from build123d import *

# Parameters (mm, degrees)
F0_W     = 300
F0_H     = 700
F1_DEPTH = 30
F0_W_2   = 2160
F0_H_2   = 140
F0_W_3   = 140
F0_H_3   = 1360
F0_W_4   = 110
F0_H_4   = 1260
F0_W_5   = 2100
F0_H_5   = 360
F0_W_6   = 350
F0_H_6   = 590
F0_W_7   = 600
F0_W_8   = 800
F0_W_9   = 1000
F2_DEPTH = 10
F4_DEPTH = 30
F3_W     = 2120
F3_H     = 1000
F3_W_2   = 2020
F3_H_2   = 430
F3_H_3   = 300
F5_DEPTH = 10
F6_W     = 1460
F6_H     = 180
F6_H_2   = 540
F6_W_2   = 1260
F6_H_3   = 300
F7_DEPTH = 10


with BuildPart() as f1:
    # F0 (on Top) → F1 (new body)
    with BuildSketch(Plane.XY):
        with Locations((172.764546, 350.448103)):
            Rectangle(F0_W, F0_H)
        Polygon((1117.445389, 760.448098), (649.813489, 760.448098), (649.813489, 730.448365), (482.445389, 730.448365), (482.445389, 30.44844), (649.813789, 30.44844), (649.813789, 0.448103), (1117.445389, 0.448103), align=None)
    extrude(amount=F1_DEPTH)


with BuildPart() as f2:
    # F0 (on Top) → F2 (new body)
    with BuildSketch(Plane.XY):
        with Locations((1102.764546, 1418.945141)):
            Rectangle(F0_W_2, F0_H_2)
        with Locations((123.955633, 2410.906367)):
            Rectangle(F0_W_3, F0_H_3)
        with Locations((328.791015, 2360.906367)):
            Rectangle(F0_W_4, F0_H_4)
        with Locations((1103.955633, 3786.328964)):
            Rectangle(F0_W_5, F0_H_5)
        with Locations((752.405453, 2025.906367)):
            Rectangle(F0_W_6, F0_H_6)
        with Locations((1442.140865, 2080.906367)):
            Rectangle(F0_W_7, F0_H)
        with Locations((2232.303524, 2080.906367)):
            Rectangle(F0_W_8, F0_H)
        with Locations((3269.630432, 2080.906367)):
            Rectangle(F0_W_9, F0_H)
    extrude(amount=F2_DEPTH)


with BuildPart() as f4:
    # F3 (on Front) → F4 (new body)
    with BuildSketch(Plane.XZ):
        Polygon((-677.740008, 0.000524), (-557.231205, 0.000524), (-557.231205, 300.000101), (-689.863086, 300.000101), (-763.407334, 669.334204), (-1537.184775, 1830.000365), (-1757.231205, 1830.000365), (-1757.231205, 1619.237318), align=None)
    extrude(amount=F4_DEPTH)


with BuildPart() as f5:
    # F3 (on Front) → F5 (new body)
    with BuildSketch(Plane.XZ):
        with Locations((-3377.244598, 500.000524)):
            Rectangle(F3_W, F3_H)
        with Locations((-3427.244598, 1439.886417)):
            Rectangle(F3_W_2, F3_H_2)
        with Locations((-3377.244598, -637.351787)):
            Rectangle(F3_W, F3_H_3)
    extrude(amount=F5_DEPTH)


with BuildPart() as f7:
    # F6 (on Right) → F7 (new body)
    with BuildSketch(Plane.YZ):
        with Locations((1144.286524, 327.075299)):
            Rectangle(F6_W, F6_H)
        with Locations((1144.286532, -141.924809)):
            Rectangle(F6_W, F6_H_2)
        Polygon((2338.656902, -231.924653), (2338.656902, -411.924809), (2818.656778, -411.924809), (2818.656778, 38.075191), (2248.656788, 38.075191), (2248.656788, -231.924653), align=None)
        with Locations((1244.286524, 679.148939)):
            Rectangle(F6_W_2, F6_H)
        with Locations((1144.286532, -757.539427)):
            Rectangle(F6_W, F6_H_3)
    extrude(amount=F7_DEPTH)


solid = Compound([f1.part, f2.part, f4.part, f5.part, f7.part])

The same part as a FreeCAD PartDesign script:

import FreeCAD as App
import Part
import Sketcher
from FreeCAD import Vector
Q = App.Units.Quantity

doc = App.newDocument("Part")
body = doc.addObject("PartDesign::Body", "Body")
body.AllowCompound = True

sketch1 = body.newObject("Sketcher::SketchObject", "Sketch")
sketch1.AttachmentSupport = (doc.getObject("XY_Plane"), [""])
sketch1.MapMode = "FlatFace"
sketch1.addGeometry(Part.LineSegment(Vector(23, 700, 0), Vector(23, 0, 0)), False)
sketch1.addGeometry(Part.LineSegment(Vector(23, 0, 0), Vector(323, 0, 0)), False)
sketch1.addGeometry(Part.LineSegment(Vector(323, 0, 0), Vector(323, 700, 0)), False)
sketch1.addGeometry(Part.LineSegment(Vector(323, 700, 0), Vector(23, 700, 0)), False)
sketch1.addGeometry(Part.LineSegment(Vector(1117, 760, 0), Vector(650, 760, 0)), False)
sketch1.addGeometry(Part.LineSegment(Vector(650, 760, 0), Vector(650, 730, 0)), False)
sketch1.addGeometry(Part.LineSegment(Vector(650, 730, 0), Vector(482, 730, 0)), False)
sketch1.addGeometry(Part.LineSegment(Vector(482, 730, 0), Vector(482, 30, 0)), False)
sketch1.addGeometry(Part.LineSegment(Vector(482, 30, 0), Vector(650, 30, 0)), False)
sketch1.addGeometry(Part.LineSegment(Vector(650, 30, 0), Vector(650, 0, 0)), False)
sketch1.addGeometry(Part.LineSegment(Vector(650, 0, 0), Vector(1117, 0, 0)), False)
sketch1.addGeometry(Part.LineSegment(Vector(1117, 0, 0), Vector(1117, 760, 0)), False)
sketch1.addConstraint(Sketcher.Constraint("Coincident", 0, 2, 1, 1))
sketch1.addConstraint(Sketcher.Constraint("Coincident", 1, 2, 2, 1))
sketch1.addConstraint(Sketcher.Constraint("Coincident", 2, 2, 3, 1))
sketch1.addConstraint(Sketcher.Constraint("Coincident", 3, 2, 0, 1))
sketch1.addConstraint(Sketcher.Constraint("Coincident", 4, 2, 5, 1))
sketch1.addConstraint(Sketcher.Constraint("Coincident", 5, 2, 6, 1))
sketch1.addConstraint(Sketcher.Constraint("Coincident", 6, 2, 7, 1))
sketch1.addConstraint(Sketcher.Constraint("Coincident", 7, 2, 8, 1))
sketch1.addConstraint(Sketcher.Constraint("Coincident", 8, 2, 9, 1))
sketch1.addConstraint(Sketcher.Constraint("Coincident", 9, 2, 10, 1))
sketch1.addConstraint(Sketcher.Constraint("Coincident", 10, 2, 11, 1))
sketch1.addConstraint(Sketcher.Constraint("Coincident", 11, 2, 4, 1))
sketch1.addConstraint(Sketcher.Constraint("Vertical", 0))
sketch1.addConstraint(Sketcher.Constraint("Horizontal", 1))
sketch1.addConstraint(Sketcher.Constraint("Vertical", 2))
sketch1.addConstraint(Sketcher.Constraint("Horizontal", 3))
sketch1.addConstraint(Sketcher.Constraint("Horizontal", 4))
sketch1.addConstraint(Sketcher.Constraint("Vertical", 5))
sketch1.addConstraint(Sketcher.Constraint("Horizontal", 6))
sketch1.addConstraint(Sketcher.Constraint("Vertical", 7))
sketch1.addConstraint(Sketcher.Constraint("Horizontal", 8))
sketch1.addConstraint(Sketcher.Constraint("Vertical", 9))
sketch1.addConstraint(Sketcher.Constraint("Horizontal", 10))
sketch1.addConstraint(Sketcher.Constraint("Vertical", 11))
sketch1.addConstraint(Sketcher.Constraint("Horizontal", 1, 2, 9, 2))
sketch1.addConstraint(Sketcher.Constraint("DistanceX", 1, 1, 1, 2, Q("300 mm")))
sketch1.addConstraint(Sketcher.Constraint("DistanceY", 0, 2, 0, 1, Q("700 mm")))
sketch1.addConstraint(Sketcher.Constraint("DistanceX", 7, 2, 10, 2, Q("635 mm")))
sketch1.addConstraint(Sketcher.Constraint("DistanceX", 4, 2, 4, 1, Q("467.6319 mm")))
sketch1.addConstraint(Sketcher.Constraint("DistanceX", 8, 1, 8, 2, Q("167.3684 mm")))
sketch1.addConstraint(Sketcher.Constraint("DistanceY", -1, 1, 4, 2, Q("760.448098 mm")))
sketch1.addConstraint(Sketcher.Constraint("DistanceY", 5, 2, 5, 1, Q("29.999733 mm")))
sketch1.addConstraint(Sketcher.Constraint("DistanceY", 7, 2, 7, 1, Q("699.999925 mm")))
sketch1.addConstraint(Sketcher.Constraint("DistanceY", 9, 2, 9, 1, Q("30.000337 mm")))
sketch1.addConstraint(Sketcher.Constraint("DistanceX", -1, 1, 4, 2, Q("649.813489 mm")))
sketch1.addConstraint(Sketcher.Constraint("DistanceX", -1, 1, 0, 2, Q("22.764546 mm")))
pad1 = body.newObject("PartDesign::Pad", "Pad")
pad1.Profile = sketch1
pad1.Length = 30
body2 = doc.addObject("PartDesign::Body", "Body001")
body2.AllowCompound = True

sketch2 = body2.newObject("Sketcher::SketchObject", "Sketch001")
sketch2.AttachmentSupport = (doc.getObject("XY_Plane001"), [""])
sketch2.MapMode = "FlatFace"
sketch2.addGeometry(Part.LineSegment(Vector(23, 1489, 0), Vector(23, 1349, 0)), False)
sketch2.addGeometry(Part.LineSegment(Vector(23, 1349, 0), Vector(2183, 1349, 0)), False)
sketch2.addGeometry(Part.LineSegment(Vector(2183, 1349, 0), Vector(2183, 1489, 0)), False)
sketch2.addGeometry(Part.LineSegment(Vector(2183, 1489, 0), Vector(23, 1489, 0)), False)
sketch2.addGeometry(Part.LineSegment(Vector(54, 3091, 0), Vector(54, 1731, 0)), False)
sketch2.addGeometry(Part.LineSegment(Vector(54, 1731, 0), Vector(194, 1731, 0)), False)
sketch2.addGeometry(Part.LineSegment(Vector(194, 1731, 0), Vector(194, 3091, 0)), False)
sketch2.addGeometry(Part.LineSegment(Vector(194, 3091, 0), Vector(54, 3091, 0)), False)
sketch2.addGeometry(Part.LineSegment(Vector(274, 2991, 0), Vector(274, 1731, 0)), False)
sketch2.addGeometry(Part.LineSegment(Vector(274, 1731, 0), Vector(384, 1731, 0)), False)
sketch2.addGeometry(Part.LineSegment(Vector(384, 1731, 0), Vector(384, 2991, 0)), False)
sketch2.addGeometry(Part.LineSegment(Vector(384, 2991, 0), Vector(274, 2991, 0)), False)
sketch2.addGeometry(Part.LineSegment(Vector(54, 3966, 0), Vector(54, 3606, 0)), False)
sketch2.addGeometry(Part.LineSegment(Vector(54, 3606, 0), Vector(2154, 3606, 0)), False)
sketch2.addGeometry(Part.LineSegment(Vector(2154, 3606, 0), Vector(2154, 3966, 0)), False)
sketch2.addGeometry(Part.LineSegment(Vector(2154, 3966, 0), Vector(54, 3966, 0)), False)
sketch2.addGeometry(Part.LineSegment(Vector(577, 2321, 0), Vector(577, 1731, 0)), False)
sketch2.addGeometry(Part.LineSegment(Vector(577, 1731, 0), Vector(927, 1731, 0)), False)
sketch2.addGeometry(Part.LineSegment(Vector(927, 1731, 0), Vector(927, 2321, 0)), False)
sketch2.addGeometry(Part.LineSegment(Vector(927, 2321, 0), Vector(577, 2321, 0)), False)
sketch2.addGeometry(Part.LineSegment(Vector(1142, 2431, 0), Vector(1142, 1731, 0)), False)
sketch2.addGeometry(Part.LineSegment(Vector(1142, 1731, 0), Vector(1742, 1731, 0)), False)
sketch2.addGeometry(Part.LineSegment(Vector(1742, 1731, 0), Vector(1742, 2431, 0)), False)
sketch2.addGeometry(Part.LineSegment(Vector(1742, 2431, 0), Vector(1142, 2431, 0)), False)
sketch2.addGeometry(Part.LineSegment(Vector(1832, 2431, 0), Vector(1832, 1731, 0)), False)
sketch2.addGeometry(Part.LineSegment(Vector(1832, 1731, 0), Vector(2632, 1731, 0)), False)
sketch2.addGeometry(Part.LineSegment(Vector(2632, 1731, 0), Vector(2632, 2431, 0)), False)
sketch2.addGeometry(Part.LineSegment(Vector(2632, 2431, 0), Vector(1832, 2431, 0)), False)
sketch2.addGeometry(Part.LineSegment(Vector(2770, 2431, 0), Vector(2770, 1731, 0)), False)
sketch2.addGeometry(Part.LineSegment(Vector(2770, 1731, 0), Vector(3770, 1731, 0)), False)
sketch2.addGeometry(Part.LineSegment(Vector(3770, 1731, 0), Vector(3770, 2431, 0)), False)
sketch2.addGeometry(Part.LineSegment(Vector(3770, 2431, 0), Vector(2770, 2431, 0)), False)
sketch2.addConstraint(Sketcher.Constraint("Coincident", 0, 2, 1, 1))
sketch2.addConstraint(Sketcher.Constraint("Coincident", 1, 2, 2, 1))
sketch2.addConstraint(Sketcher.Constraint("Coincident", 2, 2, 3, 1))
sketch2.addConstraint(Sketcher.Constraint("Coincident", 3, 2, 0, 1))
sketch2.addConstraint(Sketcher.Constraint("Coincident", 4, 2, 5, 1))
sketch2.addConstraint(Sketcher.Constraint("Coincident", 5, 2, 6, 1))
sketch2.addConstraint(Sketcher.Constraint("Coincident", 6, 2, 7, 1))
sketch2.addConstraint(Sketcher.Constraint("Coincident", 7, 2, 4, 1))
sketch2.addConstraint(Sketcher.Constraint("Coincident", 8, 2, 9, 1))
sketch2.addConstraint(Sketcher.Constraint("Coincident", 9, 2, 10, 1))
sketch2.addConstraint(Sketcher.Constraint("Coincident", 10, 2, 11, 1))
sketch2.addConstraint(Sketcher.Constraint("Coincident", 11, 2, 8, 1))
sketch2.addConstraint(Sketcher.Constraint("Coincident", 12, 2, 13, 1))
sketch2.addConstraint(Sketcher.Constraint("Coincident", 13, 2, 14, 1))
sketch2.addConstraint(Sketcher.Constraint("Coincident", 14, 2, 15, 1))
sketch2.addConstraint(Sketcher.Constraint("Coincident", 15, 2, 12, 1))
sketch2.addConstraint(Sketcher.Constraint("Coincident", 16, 2, 17, 1))
sketch2.addConstraint(Sketcher.Constraint("Coincident", 17, 2, 18, 1))
sketch2.addConstraint(Sketcher.Constraint("Coincident", 18, 2, 19, 1))
sketch2.addConstraint(Sketcher.Constraint("Coincident", 19, 2, 16, 1))
sketch2.addConstraint(Sketcher.Constraint("Coincident", 20, 2, 21, 1))
sketch2.addConstraint(Sketcher.Constraint("Coincident", 21, 2, 22, 1))
sketch2.addConstraint(Sketcher.Constraint("Coincident", 22, 2, 23, 1))
sketch2.addConstraint(Sketcher.Constraint("Coincident", 23, 2, 20, 1))
sketch2.addConstraint(Sketcher.Constraint("Coincident", 24, 2, 25, 1))
sketch2.addConstraint(Sketcher.Constraint("Coincident", 25, 2, 26, 1))
sketch2.addConstraint(Sketcher.Constraint("Coincident", 26, 2, 27, 1))
sketch2.addConstraint(Sketcher.Constraint("Coincident", 27, 2, 24, 1))
sketch2.addConstraint(Sketcher.Constraint("Coincident", 28, 2, 29, 1))
sketch2.addConstraint(Sketcher.Constraint("Coincident", 29, 2, 30, 1))
sketch2.addConstraint(Sketcher.Constraint("Coincident", 30, 2, 31, 1))
sketch2.addConstraint(Sketcher.Constraint("Coincident", 31, 2, 28, 1))
sketch2.addConstraint(Sketcher.Constraint("Vertical", 0))
sketch2.addConstraint(Sketcher.Constraint("Horizontal", 1))
sketch2.addConstraint(Sketcher.Constraint("Vertical", 2))
sketch2.addConstraint(Sketcher.Constraint("Horizontal", 3))
sketch2.addConstraint(Sketcher.Constraint("Vertical", 4))
sketch2.addConstraint(Sketcher.Constraint("Horizontal", 5))
sketch2.addConstraint(Sketcher.Constraint("Vertical", 6))
sketch2.addConstraint(Sketcher.Constraint("Horizontal", 7))
sketch2.addConstraint(Sketcher.Constraint("Vertical", 8))
sketch2.addConstraint(Sketcher.Constraint("Horizontal", 9))
sketch2.addConstraint(Sketcher.Constraint("Vertical", 10))
sketch2.addConstraint(Sketcher.Constraint("Horizontal", 11))
sketch2.addConstraint(Sketcher.Constraint("Vertical", 12))
sketch2.addConstraint(Sketcher.Constraint("Horizontal", 13))
sketch2.addConstraint(Sketcher.Constraint("Vertical", 14))
sketch2.addConstraint(Sketcher.Constraint("Horizontal", 15))
sketch2.addConstraint(Sketcher.Constraint("Vertical", 16))
sketch2.addConstraint(Sketcher.Constraint("Horizontal", 17))
sketch2.addConstraint(Sketcher.Constraint("Vertical", 18))
sketch2.addConstraint(Sketcher.Constraint("Horizontal", 19))
sketch2.addConstraint(Sketcher.Constraint("Vertical", 20))
sketch2.addConstraint(Sketcher.Constraint("Horizontal", 21))
sketch2.addConstraint(Sketcher.Constraint("Vertical", 22))
sketch2.addConstraint(Sketcher.Constraint("Horizontal", 23))
sketch2.addConstraint(Sketcher.Constraint("Vertical", 24))
sketch2.addConstraint(Sketcher.Constraint("Horizontal", 25))
sketch2.addConstraint(Sketcher.Constraint("Vertical", 26))
sketch2.addConstraint(Sketcher.Constraint("Horizontal", 27))
sketch2.addConstraint(Sketcher.Constraint("Vertical", 28))
sketch2.addConstraint(Sketcher.Constraint("Horizontal", 29))
sketch2.addConstraint(Sketcher.Constraint("Vertical", 30))
sketch2.addConstraint(Sketcher.Constraint("Horizontal", 31))
sketch2.addConstraint(Sketcher.Constraint("Horizontal", 5, 2, 8, 2))
sketch2.addConstraint(Sketcher.Constraint("Horizontal", 9, 2, 16, 2))
sketch2.addConstraint(Sketcher.Constraint("Horizontal", 17, 2, 20, 2))
sketch2.addConstraint(Sketcher.Constraint("Horizontal", 21, 2, 24, 2))
sketch2.addConstraint(Sketcher.Constraint("Horizontal", 23, 2, 26, 2))
sketch2.addConstraint(Sketcher.Constraint("Horizontal", 25, 2, 28, 2))
sketch2.addConstraint(Sketcher.Constraint("Horizontal", 27, 2, 30, 2))
sketch2.addConstraint(Sketcher.Constraint("Vertical", 7, 2, 12, 2))
sketch2.addConstraint(Sketcher.Constraint("Equal", 7, 0))
sketch2.addConstraint(Sketcher.Constraint("DistanceX", 1, 1, 1, 2, Q("2160 mm")))
sketch2.addConstraint(Sketcher.Constraint("DistanceX", 5, 1, 5, 2, Q("140 mm")))
sketch2.addConstraint(Sketcher.Constraint("DistanceX", 9, 1, 9, 2, Q("110 mm")))
sketch2.addConstraint(Sketcher.Constraint("DistanceX", 13, 1, 13, 2, Q("2100 mm")))
sketch2.addConstraint(Sketcher.Constraint("DistanceX", 17, 1, 17, 2, Q("350 mm")))
sketch2.addConstraint(Sketcher.Constraint("DistanceX", 21, 1, 21, 2, Q("600 mm")))
sketch2.addConstraint(Sketcher.Constraint("DistanceX", 25, 1, 25, 2, Q("800 mm")))
sketch2.addConstraint(Sketcher.Constraint("DistanceX", 29, 1, 29, 2, Q("1000 mm")))
sketch2.addConstraint(Sketcher.Constraint("DistanceY", 4, 2, 4, 1, Q("1360 mm")))
sketch2.addConstraint(Sketcher.Constraint("DistanceY", 8, 2, 8, 1, Q("1260 mm")))
sketch2.addConstraint(Sketcher.Constraint("DistanceY", 12, 2, 12, 1, Q("360 mm")))
sketch2.addConstraint(Sketcher.Constraint("DistanceY", 16, 2, 16, 1, Q("590 mm")))
sketch2.addConstraint(Sketcher.Constraint("DistanceY", 20, 2, 20, 1, Q("700 mm")))
sketch2.addConstraint(Sketcher.Constraint("DistanceY", -1, 1, 0, 2, Q("1348.945141 mm")))
sketch2.addConstraint(Sketcher.Constraint("DistanceX", -1, 1, 28, 2, Q("2769.630432 mm")))
sketch2.addConstraint(Sketcher.Constraint("DistanceX", 3, 2, 8, 2, Q("251.026469 mm")))
sketch2.addConstraint(Sketcher.Constraint("DistanceX", 10, 2, 13, 2, Q("1770.164618 mm")))
sketch2.addConstraint(Sketcher.Constraint("DistanceX", 5, 2, 16, 2, Q("383.44982 mm")))
sketch2.addConstraint(Sketcher.Constraint("DistanceX", 9, 2, 20, 2, Q("758.34985 mm")))
sketch2.addConstraint(Sketcher.Constraint("DistanceX", 21, 2, 24, 2, Q("90.162659 mm")))
sketch2.addConstraint(Sketcher.Constraint("DistanceX", 25, 2, 28, 2, Q("137.326908 mm")))
sketch2.addConstraint(Sketcher.Constraint("DistanceY", -1, 1, 4, 2, Q("1730.906367 mm")))
sketch2.addConstraint(Sketcher.Constraint("DistanceY", -1, 1, 12, 2, Q("3606.328964 mm")))
pad2 = body2.newObject("PartDesign::Pad", "Pad001")
pad2.Profile = sketch2
pad2.Length = 10
body3 = doc.addObject("PartDesign::Body", "Body002")

sketch3 = body3.newObject("Sketcher::SketchObject", "Sketch002")
sketch3.AttachmentSupport = (doc.getObject("XZ_Plane002"), [""])
sketch3.MapMode = "FlatFace"
sketch3.addGeometry(Part.LineSegment(Vector(-678, 0, 0), Vector(-557, 0, 0)), False)
sketch3.addGeometry(Part.LineSegment(Vector(-557, 0, 0), Vector(-557, 300, 0)), False)
sketch3.addGeometry(Part.LineSegment(Vector(-557, 300, 0), Vector(-690, 300, 0)), False)
sketch3.addGeometry(Part.LineSegment(Vector(-690, 300, 0), Vector(-763, 669, 0)), False)
sketch3.addGeometry(Part.LineSegment(Vector(-763, 669, 0), Vector(-1537, 1830, 0)), False)
sketch3.addGeometry(Part.LineSegment(Vector(-1537, 1830, 0), Vector(-1757, 1830, 0)), False)
sketch3.addGeometry(Part.LineSegment(Vector(-1757, 1830, 0), Vector(-1757, 1619, 0)), False)
sketch3.addGeometry(Part.LineSegment(Vector(-1757, 1619, 0), Vector(-678, 0, 0)), False)
sketch3.addConstraint(Sketcher.Constraint("Coincident", 0, 2, 1, 1))
sketch3.addConstraint(Sketcher.Constraint("Coincident", 1, 2, 2, 1))
sketch3.addConstraint(Sketcher.Constraint("Coincident", 2, 2, 3, 1))
sketch3.addConstraint(Sketcher.Constraint("Coincident", 3, 2, 4, 1))
sketch3.addConstraint(Sketcher.Constraint("Coincident", 4, 2, 5, 1))
sketch3.addConstraint(Sketcher.Constraint("Coincident", 5, 2, 6, 1))
sketch3.addConstraint(Sketcher.Constraint("Coincident", 6, 2, 7, 1))
sketch3.addConstraint(Sketcher.Constraint("Coincident", 7, 2, 0, 1))
sketch3.addConstraint(Sketcher.Constraint("Horizontal", 0))
sketch3.addConstraint(Sketcher.Constraint("Vertical", 1))
sketch3.addConstraint(Sketcher.Constraint("Horizontal", 2))
sketch3.addConstraint(Sketcher.Constraint("Horizontal", 5))
sketch3.addConstraint(Sketcher.Constraint("Vertical", 6))
sketch3.addConstraint(Sketcher.Constraint("Parallel", 4, 7))
sketch3.addConstraint(Sketcher.Constraint("DistanceX", 5, 2, 1, 2, Q("1200 mm")))
sketch3.addConstraint(Sketcher.Constraint("DistanceX", 2, 2, 2, 1, Q("132.631881 mm")))
sketch3.addConstraint(Sketcher.Constraint("DistanceX", 5, 2, 5, 1, Q("220.04643 mm")))
sketch3.addConstraint(Sketcher.Constraint("DistanceY", -1, 1, 1, 2, Q("300.000101 mm")))
sketch3.addConstraint(Sketcher.Constraint("Distance", 3, Q("376.585231 mm")))
sketch3.addConstraint(Sketcher.Constraint("Distance", 4, Q("1394.947119 mm")))
sketch3.addConstraint(Sketcher.Constraint("Distance", 7, Q("1946.08043 mm")))
sketch3.addConstraint(Sketcher.Constraint("DistanceX", 0, 1, 0, 2, Q("120.508803 mm")))
sketch3.addConstraint(Sketcher.Constraint("DistanceY", 1, 1, 1, 2, Q("299.999577 mm")))
sketch3.addConstraint(Sketcher.Constraint("DistanceX", 7, 2, -1, 1, Q("677.740008 mm")))
pad3 = body3.newObject("PartDesign::Pad", "Pad002")
pad3.Profile = sketch3
pad3.Length = 30
body4 = doc.addObject("PartDesign::Body", "Body003")
body4.AllowCompound = True

sketch4 = body4.newObject("Sketcher::SketchObject", "Sketch003")
sketch4.AttachmentSupport = (doc.getObject("XZ_Plane003"), [""])
sketch4.MapMode = "FlatFace"
sketch4.addGeometry(Part.LineSegment(Vector(-4437, 1000, 0), Vector(-4437, 0, 0)), False)
sketch4.addGeometry(Part.LineSegment(Vector(-4437, 0, 0), Vector(-2317, 0, 0)), False)
sketch4.addGeometry(Part.LineSegment(Vector(-2317, 0, 0), Vector(-2317, 1000, 0)), False)
sketch4.addGeometry(Part.LineSegment(Vector(-2317, 1000, 0), Vector(-4437, 1000, 0)), False)
sketch4.addGeometry(Part.LineSegment(Vector(-4437, 1655, 0), Vector(-4437, 1225, 0)), False)
sketch4.addGeometry(Part.LineSegment(Vector(-4437, 1225, 0), Vector(-2417, 1225, 0)), False)
sketch4.addGeometry(Part.LineSegment(Vector(-2417, 1225, 0), Vector(-2417, 1655, 0)), False)
sketch4.addGeometry(Part.LineSegment(Vector(-2417, 1655, 0), Vector(-4437, 1655, 0)), False)
sketch4.addGeometry(Part.LineSegment(Vector(-4437, -487, 0), Vector(-4437, -787, 0)), False)
sketch4.addGeometry(Part.LineSegment(Vector(-4437, -787, 0), Vector(-2317, -787, 0)), False)
sketch4.addGeometry(Part.LineSegment(Vector(-2317, -787, 0), Vector(-2317, -487, 0)), False)
sketch4.addGeometry(Part.LineSegment(Vector(-2317, -487, 0), Vector(-4437, -487, 0)), False)
sketch4.addConstraint(Sketcher.Constraint("Coincident", 0, 2, 1, 1))
sketch4.addConstraint(Sketcher.Constraint("Coincident", 1, 2, 2, 1))
sketch4.addConstraint(Sketcher.Constraint("Coincident", 2, 2, 3, 1))
sketch4.addConstraint(Sketcher.Constraint("Coincident", 3, 2, 0, 1))
sketch4.addConstraint(Sketcher.Constraint("Coincident", 4, 2, 5, 1))
sketch4.addConstraint(Sketcher.Constraint("Coincident", 5, 2, 6, 1))
sketch4.addConstraint(Sketcher.Constraint("Coincident", 6, 2, 7, 1))
sketch4.addConstraint(Sketcher.Constraint("Coincident", 7, 2, 4, 1))
sketch4.addConstraint(Sketcher.Constraint("Coincident", 8, 2, 9, 1))
sketch4.addConstraint(Sketcher.Constraint("Coincident", 9, 2, 10, 1))
sketch4.addConstraint(Sketcher.Constraint("Coincident", 10, 2, 11, 1))
sketch4.addConstraint(Sketcher.Constraint("Coincident", 11, 2, 8, 1))
sketch4.addConstraint(Sketcher.Constraint("Vertical", 0))
sketch4.addConstraint(Sketcher.Constraint("Horizontal", 1))
sketch4.addConstraint(Sketcher.Constraint("Vertical", 2))
sketch4.addConstraint(Sketcher.Constraint("Horizontal", 3))
sketch4.addConstraint(Sketcher.Constraint("Vertical", 4))
sketch4.addConstraint(Sketcher.Constraint("Horizontal", 5))
sketch4.addConstraint(Sketcher.Constraint("Vertical", 6))
sketch4.addConstraint(Sketcher.Constraint("Horizontal", 7))
sketch4.addConstraint(Sketcher.Constraint("Vertical", 8))
sketch4.addConstraint(Sketcher.Constraint("Horizontal", 9))
sketch4.addConstraint(Sketcher.Constraint("Vertical", 10))
sketch4.addConstraint(Sketcher.Constraint("Horizontal", 11))
sketch4.addConstraint(Sketcher.Constraint("Vertical", 3, 2, 4, 2))
sketch4.addConstraint(Sketcher.Constraint("Vertical", 7, 2, 8, 2))
sketch4.addConstraint(Sketcher.Constraint("Vertical", 2, 2, 9, 2))
sketch4.addConstraint(Sketcher.Constraint("DistanceX", 1, 1, 1, 2, Q("2120 mm")))
sketch4.addConstraint(Sketcher.Constraint("DistanceX", 5, 1, 5, 2, Q("2020 mm")))
sketch4.addConstraint(Sketcher.Constraint("DistanceY", 0, 2, 0, 1, Q("1000 mm")))
sketch4.addConstraint(Sketcher.Constraint("DistanceY", 4, 2, 4, 1, Q("430 mm")))
sketch4.addConstraint(Sketcher.Constraint("DistanceY", 8, 2, 8, 1, Q("300 mm")))
sketch4.addConstraint(Sketcher.Constraint("DistanceX", 0, 2, -1, 1, Q("4437.244598 mm")))
sketch4.addConstraint(Sketcher.Constraint("DistanceY", 8, 2, 0, 2, Q("787.352311 mm")))
sketch4.addConstraint(Sketcher.Constraint("DistanceY", -1, 1, 0, 2, Q("0.000524 mm")))
sketch4.addConstraint(Sketcher.Constraint("DistanceY", -1, 1, 4, 2, Q("1224.886417 mm")))
pad4 = body4.newObject("PartDesign::Pad", "Pad003")
pad4.Profile = sketch4
pad4.Length = 10
body5 = doc.addObject("PartDesign::Body", "Body004")
body5.AllowCompound = True

sketch5 = body5.newObject("Sketcher::SketchObject", "Sketch004")
sketch5.AttachmentSupport = (doc.getObject("YZ_Plane004"), [""])
sketch5.MapMode = "FlatFace"
sketch5.addGeometry(Part.LineSegment(Vector(414, 417, 0), Vector(414, 237, 0)), False)
sketch5.addGeometry(Part.LineSegment(Vector(414, 237, 0), Vector(1874, 237, 0)), False)
sketch5.addGeometry(Part.LineSegment(Vector(1874, 237, 0), Vector(1874, 417, 0)), False)
sketch5.addGeometry(Part.LineSegment(Vector(1874, 417, 0), Vector(414, 417, 0)), False)
sketch5.addGeometry(Part.LineSegment(Vector(414, 128, 0), Vector(414, -412, 0)), False)
sketch5.addGeometry(Part.LineSegment(Vector(414, -412, 0), Vector(1874, -412, 0)), False)
sketch5.addGeometry(Part.LineSegment(Vector(1874, -412, 0), Vector(1874, 128, 0)), False)
sketch5.addGeometry(Part.LineSegment(Vector(1874, 128, 0), Vector(414, 128, 0)), False)
sketch5.addGeometry(Part.LineSegment(Vector(2339, -232, 0), Vector(2339, -412, 0)), False)
sketch5.addGeometry(Part.LineSegment(Vector(2339, -412, 0), Vector(2819, -412, 0)), False)
sketch5.addGeometry(Part.LineSegment(Vector(2819, -412, 0), Vector(2819, 38, 0)), False)
sketch5.addGeometry(Part.LineSegment(Vector(2819, 38, 0), Vector(2249, 38, 0)), False)
sketch5.addGeometry(Part.LineSegment(Vector(2249, 38, 0), Vector(2249, -232, 0)), False)
sketch5.addGeometry(Part.LineSegment(Vector(2249, -232, 0), Vector(2339, -232, 0)), False)
sketch5.addGeometry(Part.LineSegment(Vector(614, 769, 0), Vector(614, 589, 0)), False)
sketch5.addGeometry(Part.LineSegment(Vector(614, 589, 0), Vector(1874, 589, 0)), False)
sketch5.addGeometry(Part.LineSegment(Vector(1874, 589, 0), Vector(1874, 769, 0)), False)
sketch5.addGeometry(Part.LineSegment(Vector(1874, 769, 0), Vector(614, 769, 0)), False)
sketch5.addGeometry(Part.LineSegment(Vector(414, -608, 0), Vector(414, -908, 0)), False)
sketch5.addGeometry(Part.LineSegment(Vector(414, -908, 0), Vector(1874, -908, 0)), False)
sketch5.addGeometry(Part.LineSegment(Vector(1874, -908, 0), Vector(1874, -608, 0)), False)
sketch5.addGeometry(Part.LineSegment(Vector(1874, -608, 0), Vector(414, -608, 0)), False)
sketch5.addConstraint(Sketcher.Constraint("Coincident", 0, 2, 1, 1))
sketch5.addConstraint(Sketcher.Constraint("Coincident", 1, 2, 2, 1))
sketch5.addConstraint(Sketcher.Constraint("Coincident", 2, 2, 3, 1))
sketch5.addConstraint(Sketcher.Constraint("Coincident", 3, 2, 0, 1))
sketch5.addConstraint(Sketcher.Constraint("Coincident", 4, 2, 5, 1))
sketch5.addConstraint(Sketcher.Constraint("Coincident", 5, 2, 6, 1))
sketch5.addConstraint(Sketcher.Constraint("Coincident", 6, 2, 7, 1))
sketch5.addConstraint(Sketcher.Constraint("Coincident", 7, 2, 4, 1))
sketch5.addConstraint(Sketcher.Constraint("Coincident", 8, 2, 9, 1))
sketch5.addConstraint(Sketcher.Constraint("Coincident", 9, 2, 10, 1))
sketch5.addConstraint(Sketcher.Constraint("Coincident", 10, 2, 11, 1))
sketch5.addConstraint(Sketcher.Constraint("Coincident", 11, 2, 12, 1))
sketch5.addConstraint(Sketcher.Constraint("Coincident", 12, 2, 13, 1))
sketch5.addConstraint(Sketcher.Constraint("Coincident", 13, 2, 8, 1))
sketch5.addConstraint(Sketcher.Constraint("Coincident", 14, 2, 15, 1))
sketch5.addConstraint(Sketcher.Constraint("Coincident", 15, 2, 16, 1))
sketch5.addConstraint(Sketcher.Constraint("Coincident", 16, 2, 17, 1))
sketch5.addConstraint(Sketcher.Constraint("Coincident", 17, 2, 14, 1))
sketch5.addConstraint(Sketcher.Constraint("Coincident", 18, 2, 19, 1))
sketch5.addConstraint(Sketcher.Constraint("Coincident", 19, 2, 20, 1))
sketch5.addConstraint(Sketcher.Constraint("Coincident", 20, 2, 21, 1))
sketch5.addConstraint(Sketcher.Constraint("Coincident", 21, 2, 18, 1))
sketch5.addConstraint(Sketcher.Constraint("Vertical", 0))
sketch5.addConstraint(Sketcher.Constraint("Horizontal", 1))
sketch5.addConstraint(Sketcher.Constraint("Vertical", 2))
sketch5.addConstraint(Sketcher.Constraint("Horizontal", 3))
sketch5.addConstraint(Sketcher.Constraint("Vertical", 4))
sketch5.addConstraint(Sketcher.Constraint("Horizontal", 5))
sketch5.addConstraint(Sketcher.Constraint("Vertical", 6))
sketch5.addConstraint(Sketcher.Constraint("Horizontal", 7))
sketch5.addConstraint(Sketcher.Constraint("Vertical", 8))
sketch5.addConstraint(Sketcher.Constraint("Horizontal", 9))
sketch5.addConstraint(Sketcher.Constraint("Vertical", 10))
sketch5.addConstraint(Sketcher.Constraint("Horizontal", 11))
sketch5.addConstraint(Sketcher.Constraint("Vertical", 12))
sketch5.addConstraint(Sketcher.Constraint("Horizontal", 13))
sketch5.addConstraint(Sketcher.Constraint("Vertical", 14))
sketch5.addConstraint(Sketcher.Constraint("Horizontal", 15))
sketch5.addConstraint(Sketcher.Constraint("Vertical", 16))
sketch5.addConstraint(Sketcher.Constraint("Horizontal", 17))
sketch5.addConstraint(Sketcher.Constraint("Vertical", 18))
sketch5.addConstraint(Sketcher.Constraint("Horizontal", 19))
sketch5.addConstraint(Sketcher.Constraint("Vertical", 20))
sketch5.addConstraint(Sketcher.Constraint("Horizontal", 21))
sketch5.addConstraint(Sketcher.Constraint("Horizontal", 5, 2, 8, 2))
sketch5.addConstraint(Sketcher.Constraint("Vertical", 2, 2, 15, 2))
sketch5.addConstraint(Sketcher.Constraint("Vertical", 7, 2, 18, 2))
sketch5.addConstraint(Sketcher.Constraint("Vertical", 6, 2, 19, 2))
sketch5.addConstraint(Sketcher.Constraint("Equal", 3, 5))
sketch5.addConstraint(Sketcher.Constraint("Equal", 2, 14))
sketch5.addConstraint(Sketcher.Constraint("DistanceX", 1, 1, 1, 2, Q("1460 mm")))
sketch5.addConstraint(Sketcher.Constraint("DistanceX", 15, 1, 15, 2, Q("1260 mm")))
sketch5.addConstraint(Sketcher.Constraint("DistanceY", 0, 2, 0, 1, Q("180 mm")))
sketch5.addConstraint(Sketcher.Constraint("DistanceY", 4, 2, 4, 1, Q("540 mm")))
sketch5.addConstraint(Sketcher.Constraint("DistanceY", 10, 1, 10, 2, Q("450 mm")))
sketch5.addConstraint(Sketcher.Constraint("DistanceY", 18, 2, 18, 1, Q("300 mm")))
sketch5.addConstraint(Sketcher.Constraint("DistanceX", 11, 2, 11, 1, Q("569.99999 mm")))
sketch5.addConstraint(Sketcher.Constraint("DistanceY", -1, 1, 0, 2, Q("237.075299 mm")))
sketch5.addConstraint(Sketcher.Constraint("DistanceX", 9, 1, 9, 2, Q("479.999876 mm")))
sketch5.addConstraint(Sketcher.Constraint("DistanceY", 8, 2, 8, 1, Q("180.000156 mm")))
sketch5.addConstraint(Sketcher.Constraint("DistanceX", -1, 1, 4, 2, Q("414.286532 mm")))
sketch5.addConstraint(Sketcher.Constraint("DistanceY", 4, 2, -1, 1, Q("411.924809 mm")))
sketch5.addConstraint(Sketcher.Constraint("DistanceX", -1, 1, 9, 2, Q("2818.656778 mm")))
sketch5.addConstraint(Sketcher.Constraint("DistanceY", -1, 1, 14, 2, Q("589.148939 mm")))
sketch5.addConstraint(Sketcher.Constraint("DistanceX", 4, 2, 1, 2, Q("1459.999992 mm")))
sketch5.addConstraint(Sketcher.Constraint("DistanceY", 18, 2, 4, 2, Q("495.614618 mm")))
pad5 = body5.newObject("PartDesign::Pad", "Pad004")
pad5.Profile = sketch5
pad5.Length = 10

doc.recompute()
